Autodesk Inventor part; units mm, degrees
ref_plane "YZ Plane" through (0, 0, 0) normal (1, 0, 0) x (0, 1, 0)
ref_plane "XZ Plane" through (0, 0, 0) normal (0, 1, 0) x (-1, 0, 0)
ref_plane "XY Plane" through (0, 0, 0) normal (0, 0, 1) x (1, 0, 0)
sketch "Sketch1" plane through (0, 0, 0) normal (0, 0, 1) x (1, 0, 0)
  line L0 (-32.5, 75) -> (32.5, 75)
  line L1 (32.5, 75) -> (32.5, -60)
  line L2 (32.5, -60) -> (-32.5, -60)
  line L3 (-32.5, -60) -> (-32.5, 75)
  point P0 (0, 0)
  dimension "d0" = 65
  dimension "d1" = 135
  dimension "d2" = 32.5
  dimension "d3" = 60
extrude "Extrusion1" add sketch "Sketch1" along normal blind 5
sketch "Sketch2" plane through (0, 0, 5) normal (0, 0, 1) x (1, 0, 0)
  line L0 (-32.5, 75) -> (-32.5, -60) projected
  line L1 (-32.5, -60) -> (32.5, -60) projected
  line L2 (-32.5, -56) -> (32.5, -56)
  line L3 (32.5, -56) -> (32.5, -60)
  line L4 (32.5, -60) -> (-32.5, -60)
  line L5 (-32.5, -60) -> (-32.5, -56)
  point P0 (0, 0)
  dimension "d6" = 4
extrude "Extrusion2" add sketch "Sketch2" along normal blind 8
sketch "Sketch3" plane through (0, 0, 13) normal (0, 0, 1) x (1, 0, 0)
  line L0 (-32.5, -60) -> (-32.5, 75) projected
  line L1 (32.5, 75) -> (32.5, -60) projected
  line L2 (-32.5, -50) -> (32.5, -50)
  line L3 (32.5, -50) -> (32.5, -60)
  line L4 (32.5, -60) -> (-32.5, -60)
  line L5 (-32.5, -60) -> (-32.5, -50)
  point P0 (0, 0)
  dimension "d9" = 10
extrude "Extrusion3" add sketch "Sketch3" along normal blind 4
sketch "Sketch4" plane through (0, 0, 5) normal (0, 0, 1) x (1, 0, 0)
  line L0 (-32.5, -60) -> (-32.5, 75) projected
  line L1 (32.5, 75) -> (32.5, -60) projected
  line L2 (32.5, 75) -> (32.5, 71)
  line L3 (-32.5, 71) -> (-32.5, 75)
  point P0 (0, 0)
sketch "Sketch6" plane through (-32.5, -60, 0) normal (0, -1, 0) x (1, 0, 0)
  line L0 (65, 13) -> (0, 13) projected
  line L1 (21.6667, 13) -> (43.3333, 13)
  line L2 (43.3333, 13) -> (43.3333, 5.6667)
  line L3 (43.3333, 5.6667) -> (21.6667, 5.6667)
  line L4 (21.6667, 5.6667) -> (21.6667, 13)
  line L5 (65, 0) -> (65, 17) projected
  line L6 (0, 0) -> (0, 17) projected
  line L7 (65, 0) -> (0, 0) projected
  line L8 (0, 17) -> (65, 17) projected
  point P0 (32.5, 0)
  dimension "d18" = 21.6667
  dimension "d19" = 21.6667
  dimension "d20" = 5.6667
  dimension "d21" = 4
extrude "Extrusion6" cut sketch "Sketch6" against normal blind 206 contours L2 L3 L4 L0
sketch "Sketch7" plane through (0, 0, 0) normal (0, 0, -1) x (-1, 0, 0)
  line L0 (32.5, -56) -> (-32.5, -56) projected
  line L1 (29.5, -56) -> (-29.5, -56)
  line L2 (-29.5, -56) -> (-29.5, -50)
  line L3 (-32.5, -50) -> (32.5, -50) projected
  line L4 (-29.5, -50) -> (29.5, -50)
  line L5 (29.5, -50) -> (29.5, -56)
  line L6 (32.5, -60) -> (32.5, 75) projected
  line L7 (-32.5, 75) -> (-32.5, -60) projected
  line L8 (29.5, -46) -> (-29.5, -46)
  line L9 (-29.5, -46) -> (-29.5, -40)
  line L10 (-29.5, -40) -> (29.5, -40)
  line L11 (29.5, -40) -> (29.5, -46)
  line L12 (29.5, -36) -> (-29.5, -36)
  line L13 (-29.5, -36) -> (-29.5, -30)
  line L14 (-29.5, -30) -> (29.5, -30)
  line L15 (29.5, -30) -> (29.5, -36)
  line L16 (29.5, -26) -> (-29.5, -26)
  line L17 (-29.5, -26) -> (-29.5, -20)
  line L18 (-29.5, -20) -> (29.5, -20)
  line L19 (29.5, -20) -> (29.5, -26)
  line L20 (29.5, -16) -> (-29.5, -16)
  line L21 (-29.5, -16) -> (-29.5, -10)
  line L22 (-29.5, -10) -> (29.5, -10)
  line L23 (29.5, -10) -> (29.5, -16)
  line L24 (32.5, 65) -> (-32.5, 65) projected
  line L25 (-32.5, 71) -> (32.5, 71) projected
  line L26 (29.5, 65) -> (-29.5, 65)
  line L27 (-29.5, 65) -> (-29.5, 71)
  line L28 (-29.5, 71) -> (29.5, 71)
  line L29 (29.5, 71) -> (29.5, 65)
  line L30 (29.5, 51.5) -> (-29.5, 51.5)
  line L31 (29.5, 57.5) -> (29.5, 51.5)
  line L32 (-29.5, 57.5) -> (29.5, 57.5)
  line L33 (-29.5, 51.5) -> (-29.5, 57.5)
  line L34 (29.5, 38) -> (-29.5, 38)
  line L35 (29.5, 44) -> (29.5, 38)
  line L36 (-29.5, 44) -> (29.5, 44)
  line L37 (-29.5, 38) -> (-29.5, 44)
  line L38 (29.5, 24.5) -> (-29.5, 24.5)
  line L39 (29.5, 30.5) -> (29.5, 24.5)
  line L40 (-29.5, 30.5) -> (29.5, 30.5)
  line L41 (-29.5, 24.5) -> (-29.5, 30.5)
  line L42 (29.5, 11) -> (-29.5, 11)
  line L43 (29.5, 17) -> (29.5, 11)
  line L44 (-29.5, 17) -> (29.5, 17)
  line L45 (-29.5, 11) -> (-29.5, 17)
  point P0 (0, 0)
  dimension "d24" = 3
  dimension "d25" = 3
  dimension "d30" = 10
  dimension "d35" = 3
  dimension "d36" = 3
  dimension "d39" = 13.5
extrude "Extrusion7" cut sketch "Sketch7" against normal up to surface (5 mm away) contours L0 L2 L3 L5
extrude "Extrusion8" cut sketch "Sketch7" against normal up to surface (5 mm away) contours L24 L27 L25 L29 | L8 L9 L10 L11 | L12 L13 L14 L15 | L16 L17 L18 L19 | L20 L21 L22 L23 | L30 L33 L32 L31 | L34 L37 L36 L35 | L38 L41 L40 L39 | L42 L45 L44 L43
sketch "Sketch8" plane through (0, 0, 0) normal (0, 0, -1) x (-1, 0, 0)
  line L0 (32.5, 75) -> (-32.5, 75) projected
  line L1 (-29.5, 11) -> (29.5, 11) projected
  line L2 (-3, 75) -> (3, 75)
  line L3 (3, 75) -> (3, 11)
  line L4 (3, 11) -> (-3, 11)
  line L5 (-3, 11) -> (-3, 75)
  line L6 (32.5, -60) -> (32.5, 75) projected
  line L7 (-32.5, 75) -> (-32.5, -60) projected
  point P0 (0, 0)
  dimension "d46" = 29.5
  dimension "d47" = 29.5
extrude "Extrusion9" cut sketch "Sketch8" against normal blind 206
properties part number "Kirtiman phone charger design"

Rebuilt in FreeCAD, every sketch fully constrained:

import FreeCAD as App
import Part
import Sketcher
Q = App.Units.Quantity

doc = App.newDocument("Part")
body = doc.addObject("PartDesign::Body", "Body")

# Sketch on XY plane
sketch1 = body.newObject("Sketcher::SketchObject", "Sketch")
sketch1.AttachmentSupport = (doc.getObject("XY_Plane"), [""])
sketch1.MapMode = "FlatFace"
sketch1.addGeometry([
    Part.LineSegment(App.Vector(32.5, 75, 0), App.Vector(-32.5, 75, 0)),
    Part.LineSegment(App.Vector(-32.5, 75, 0), App.Vector(-32.5, -60, 0)),
    Part.LineSegment(App.Vector(-32.5, -60, 0), App.Vector(32.5, -60, 0)),
    Part.LineSegment(App.Vector(32.5, -60, 0), App.Vector(32.5, 75, 0)),
], False)
sketch1.addConstraint([
    Sketcher.Constraint("Coincident", 0, 2, 1, 1),
    Sketcher.Constraint("Coincident", 1, 2, 2, 1),
    Sketcher.Constraint("Coincident", 2, 2, 3, 1),
    Sketcher.Constraint("Coincident", 3, 2, 0, 1),
    Sketcher.Constraint("Horizontal", 0),
    Sketcher.Constraint("Vertical", 1),
    Sketcher.Constraint("Horizontal", 2),
    Sketcher.Constraint("Vertical", 3),
    Sketcher.Constraint("DistanceX", 0, 2, 0, 1, Q("65 mm")),
    Sketcher.Constraint("DistanceY", 1, 2, 1, 1, Q("135 mm")),
    Sketcher.Constraint("DistanceY", 1, 2, -1, 1, Q("60 mm")),
    Sketcher.Constraint("DistanceX", 0, 2, -1, 1, Q("32.5 mm")),
])
pad1 = body.newObject("PartDesign::Pad", "Pad")
pad1.Profile = sketch1
pad1.Length = 5

# Sketch on XY plane
sketch2 = body.newObject("Sketcher::SketchObject", "Sketch001")
sketch2.AttachmentSupport = (doc.getObject("XY_Plane"), [""])
sketch2.MapMode = "FlatFace"
sketch2.AttachmentOffset = App.Placement(App.Vector(0, 0, 5), App.Rotation())
sketch2.addGeometry([
    Part.LineSegment(App.Vector(32.5, -56, 0), App.Vector(-32.5, -56, 0)),
    Part.LineSegment(App.Vector(-32.5, -56, 0), App.Vector(-32.5, -60, 0)),
    Part.LineSegment(App.Vector(-32.5, -60, 0), App.Vector(32.5, -60, 0)),
    Part.LineSegment(App.Vector(32.5, -60, 0), App.Vector(32.5, -56, 0)),
], False)
sketch2.addConstraint([
    Sketcher.Constraint("Coincident", 0, 2, 1, 1),
    Sketcher.Constraint("Coincident", 1, 2, 2, 1),
    Sketcher.Constraint("Coincident", 2, 2, 3, 1),
    Sketcher.Constraint("Coincident", 3, 2, 0, 1),
    Sketcher.Constraint("Horizontal", 0),
    Sketcher.Constraint("Vertical", 1),
    Sketcher.Constraint("Horizontal", 2),
    Sketcher.Constraint("Vertical", 3),
    Sketcher.Constraint("DistanceY", 1, 2, 1, 1, Q("4 mm")),
    Sketcher.Constraint("DistanceX", 0, 2, 0, 1, Q("65 mm")),
    Sketcher.Constraint("DistanceY", 0, 2, -1, 1, Q("56 mm")),
    Sketcher.Constraint("DistanceX", 0, 2, -1, 1, Q("32.5 mm")),
])
pad2 = body.newObject("PartDesign::Pad", "Pad001")
pad2.Profile = sketch2
pad2.Length = 8

# Sketch on XY plane
sketch3 = body.newObject("Sketcher::SketchObject", "Sketch002")
sketch3.AttachmentSupport = (doc.getObject("XY_Plane"), [""])
sketch3.MapMode = "FlatFace"
sketch3.AttachmentOffset = App.Placement(App.Vector(0, 0, 13), App.Rotation())
sketch3.addGeometry([
    Part.LineSegment(App.Vector(-32.5, -50, 0), App.Vector(-32.5, -60, 0)),
    Part.LineSegment(App.Vector(-32.5, -60, 0), App.Vector(32.5, -60, 0)),
    Part.LineSegment(App.Vector(32.5, -60, 0), App.Vector(32.5, -50, 0)),
    Part.LineSegment(App.Vector(32.5, -50, 0), App.Vector(-32.5, -50, 0)),
], False)
sketch3.addConstraint([
    Sketcher.Constraint("Coincident", 0, 2, 1, 1),
    Sketcher.Constraint("Coincident", 1, 2, 2, 1),
    Sketcher.Constraint("Coincident", 2, 2, 3, 1),
    Sketcher.Constraint("Coincident", 3, 2, 0, 1),
    Sketcher.Constraint("Vertical", 0),
    Sketcher.Constraint("Horizontal", 1),
    Sketcher.Constraint("Vertical", 2),
    Sketcher.Constraint("Horizontal", 3),
    Sketcher.Constraint("DistanceY", 0, 2, 0, 1, Q("10 mm")),
    Sketcher.Constraint("DistanceX", 1, 1, 1, 2, Q("65 mm")),
    Sketcher.Constraint("DistanceY", 0, 2, -1, 1, Q("60 mm")),
    Sketcher.Constraint("DistanceX", 0, 2, -1, 1, Q("32.5 mm")),
])
pad3 = body.newObject("PartDesign::Pad", "Pad002")
pad3.Profile = sketch3
pad3.Length = 4

# Sketch on XZ plane
sketch4 = body.newObject("Sketcher::SketchObject", "Sketch003")
sketch4.AttachmentSupport = (doc.getObject("XZ_Plane"), [""])
sketch4.MapMode = "FlatFace"
sketch4.AttachmentOffset = App.Placement(App.Vector(0, 0, 60), App.Rotation())
sketch4.addGeometry([
    Part.LineSegment(App.Vector(10.8333, 5.6667, 0), App.Vector(10.8333, 13, 0)),
    Part.LineSegment(App.Vector(10.8333, 13, 0), App.Vector(-10.8333, 13, 0)),
    Part.LineSegment(App.Vector(-10.8333, 13, 0), App.Vector(-10.8333, 5.6667, 0)),
    Part.LineSegment(App.Vector(-10.8333, 5.6667, 0), App.Vector(10.8333, 5.6667, 0)),
], False)
sketch4.addConstraint([
    Sketcher.Constraint("Coincident", 0, 2, 1, 1),
    Sketcher.Constraint("Coincident", 1, 2, 2, 1),
    Sketcher.Constraint("Coincident", 2, 2, 3, 1),
    Sketcher.Constraint("Coincident", 3, 2, 0, 1),
    Sketcher.Constraint("Vertical", 0),
    Sketcher.Constraint("Horizontal", 1),
    Sketcher.Constraint("Vertical", 2),
    Sketcher.Constraint("Horizontal", 3),
    Sketcher.Constraint("DistanceX", 1, 2, 1, 1, Q("21.6666 mm")),
    Sketcher.Constraint("DistanceY", -1, 1, 0, 2, Q("13 mm")),
    Sketcher.Constraint("DistanceY", -1, 1, 2, 2, Q("5.6667 mm")),
    Sketcher.Constraint("DistanceX", -1, 1, 0, 2, Q("10.8333 mm")),
])
pocket1 = body.newObject("PartDesign::Pocket", "Pocket")
pocket1.Profile = sketch4
pocket1.Length = 206

# Sketch on XY plane
sketch5 = body.newObject("Sketcher::SketchObject", "Sketch004")
sketch5.AttachmentSupport = (doc.getObject("XY_Plane"), [""])
sketch5.MapMode = "FlatFace"
sketch5.addGeometry([
    Part.LineSegment(App.Vector(29.5, -56, 0), App.Vector(-29.5, -56, 0)),
    Part.LineSegment(App.Vector(-29.5, -56, 0), App.Vector(-29.5, -50, 0)),
    Part.LineSegment(App.Vector(-29.5, -50, 0), App.Vector(29.5, -50, 0)),
    Part.LineSegment(App.Vector(29.5, -50, 0), App.Vector(29.5, -56, 0)),
], False)
sketch5.addConstraint([
    Sketcher.Constraint("Coincident", 0, 2, 1, 1),
    Sketcher.Constraint("Coincident", 1, 2, 2, 1),
    Sketcher.Constraint("Coincident", 2, 2, 3, 1),
    Sketcher.Constraint("Coincident", 3, 2, 0, 1),
    Sketcher.Constraint("Horizontal", 0),
    Sketcher.Constraint("Vertical", 1),
    Sketcher.Constraint("Horizontal", 2),
    Sketcher.Constraint("Vertical", 3),
    Sketcher.Constraint("DistanceX", 0, 2, 0, 1, Q("59 mm")),
    Sketcher.Constraint("DistanceY", 1, 1, 1, 2, Q("6 mm")),
    Sketcher.Constraint("DistanceY", 0, 2, -1, 1, Q("56 mm")),
    Sketcher.Constraint("DistanceX", 0, 2, -1, 1, Q("29.5 mm")),
])
pocket2 = body.newObject("PartDesign::Pocket", "Pocket001")
pocket2.Profile = sketch5
pocket2.Length = 5
pocket2.Reversed = True

# Sketch on XY plane
sketch6 = body.newObject("Sketcher::SketchObject", "Sketch005")
sketch6.AttachmentSupport = (doc.getObject("XY_Plane"), [""])
sketch6.MapMode = "FlatFace"
sketch6.addGeometry([
    Part.LineSegment(App.Vector(29.5, 65, 0), App.Vector(-29.5, 65, 0)),  # 0
    Part.LineSegment(App.Vector(-29.5, 65, 0), App.Vector(-29.5, 71, 0)),  # 1
    Part.LineSegment(App.Vector(-29.5, 71, 0), App.Vector(29.5, 71, 0)),  # 2
    Part.LineSegment(App.Vector(29.5, 71, 0), App.Vector(29.5, 65, 0)),  # 3
    Part.LineSegment(App.Vector(29.5, -46, 0), App.Vector(-29.5, -46, 0)),  # 4
    Part.LineSegment(App.Vector(-29.5, -46, 0), App.Vector(-29.5, -40, 0)),  # 5
    Part.LineSegment(App.Vector(-29.5, -40, 0), App.Vector(29.5, -40, 0)),  # 6
    Part.LineSegment(App.Vector(29.5, -40, 0), App.Vector(29.5, -46, 0)),  # 7
    Part.LineSegment(App.Vector(29.5, -36, 0), App.Vector(-29.5, -36, 0)),  # 8
    Part.LineSegment(App.Vector(-29.5, -36, 0), App.Vector(-29.5, -30, 0)),  # 9
    Part.LineSegment(App.Vector(-29.5, -30, 0), App.Vector(29.5, -30, 0)),  # 10
    Part.LineSegment(App.Vector(29.5, -30, 0), App.Vector(29.5, -36, 0)),  # 11
    Part.LineSegment(App.Vector(29.5, -26, 0), App.Vector(-29.5, -26, 0)),  # 12
    Part.LineSegment(App.Vector(-29.5, -26, 0), App.Vector(-29.5, -20, 0)),  # 13
    Part.LineSegment(App.Vector(-29.5, -20, 0), App.Vector(29.5, -20, 0)),  # 14
    Part.LineSegment(App.Vector(29.5, -20, 0), App.Vector(29.5, -26, 0)),  # 15
    Part.LineSegment(App.Vector(29.5, -16, 0), App.Vector(-29.5, -16, 0)),  # 16
    Part.LineSegment(App.Vector(-29.5, -16, 0), App.Vector(-29.5, -10, 0)),  # 17
    Part.LineSegment(App.Vector(-29.5, -10, 0), App.Vector(29.5, -10, 0)),  # 18
    Part.LineSegment(App.Vector(29.5, -10, 0), App.Vector(29.5, -16, 0)),  # 19
    Part.LineSegment(App.Vector(29.5, 51.5, 0), App.Vector(-29.5, 51.5, 0)),  # 20
    Part.LineSegment(App.Vector(-29.5, 51.5, 0), App.Vector(-29.5, 57.5, 0)),  # 21
    Part.LineSegment(App.Vector(-29.5, 57.5, 0), App.Vector(29.5, 57.5, 0)),  # 22
    Part.LineSegment(App.Vector(29.5, 57.5, 0), App.Vector(29.5, 51.5, 0)),  # 23
    Part.LineSegment(App.Vector(29.5, 38, 0), App.Vector(-29.5, 38, 0)),  # 24
    Part.LineSegment(App.Vector(-29.5, 38, 0), App.Vector(-29.5, 44, 0)),  # 25
    Part.LineSegment(App.Vector(-29.5, 44, 0), App.Vector(29.5, 44, 0)),  # 26
    Part.LineSegment(App.Vector(29.5, 44, 0), App.Vector(29.5, 38, 0)),  # 27
    Part.LineSegment(App.Vector(29.5, 24.5, 0), App.Vector(-29.5, 24.5, 0)),  # 28
    Part.LineSegment(App.Vector(-29.5, 24.5, 0), App.Vector(-29.5, 30.5, 0)),  # 29
    Part.LineSegment(App.Vector(-29.5, 30.5, 0), App.Vector(29.5, 30.5, 0)),  # 30
    Part.LineSegment(App.Vector(29.5, 30.5, 0), App.Vector(29.5, 24.5, 0)),  # 31
    Part.LineSegment(App.Vector(29.5, 11, 0), App.Vector(-29.5, 11, 0)),  # 32
    Part.LineSegment(App.Vector(-29.5, 11, 0), App.Vector(-29.5, 17, 0)),  # 33
    Part.LineSegment(App.Vector(-29.5, 17, 0), App.Vector(29.5, 17, 0)),  # 34
    Part.LineSegment(App.Vector(29.5, 17, 0), App.Vector(29.5, 11, 0)),  # 35
], False)
sketch6.addConstraint([
    Sketcher.Constraint("Coincident", 0, 2, 1, 1),
    Sketcher.Constraint("Coincident", 1, 2, 2, 1),
    Sketcher.Constraint("Coincident", 2, 2, 3, 1),
    Sketcher.Constraint("Coincident", 3, 2, 0, 1),
    Sketcher.Constraint("Coincident", 4, 2, 5, 1),
    Sketcher.Constraint("Coincident", 5, 2, 6, 1),
    Sketcher.Constraint("Coincident", 6, 2, 7, 1),
    Sketcher.Constraint("Coincident", 7, 2, 4, 1),
    Sketcher.Constraint("Coincident", 8, 2, 9, 1),
    Sketcher.Constraint("Coincident", 9, 2, 10, 1),
    Sketcher.Constraint("Coincident", 10, 2, 11, 1),
    Sketcher.Constraint("Coincident", 11, 2, 8, 1),
    Sketcher.Constraint("Coincident", 12, 2, 13, 1),
    Sketcher.Constraint("Coincident", 13, 2, 14, 1),
    Sketcher.Constraint("Coincident", 14, 2, 15, 1),
    Sketcher.Constraint("Coincident", 15, 2, 12, 1),
    Sketcher.Constraint("Coincident", 16, 2, 17, 1),
    Sketcher.Constraint("Coincident", 17, 2, 18, 1),
    Sketcher.Constraint("Coincident", 18, 2, 19, 1),
    Sketcher.Constraint("Coincident", 19, 2, 16, 1),
    Sketcher.Constraint("Coincident", 20, 2, 21, 1),
    Sketcher.Constraint("Coincident", 21, 2, 22, 1),
    Sketcher.Constraint("Coincident", 22, 2, 23, 1),
    Sketcher.Constraint("Coincident", 23, 2, 20, 1),
    Sketcher.Constraint("Coincident", 24, 2, 25, 1),
    Sketcher.Constraint("Coincident", 25, 2, 26, 1),
    Sketcher.Constraint("Coincident", 26, 2, 27, 1),
    Sketcher.Constraint("Coincident", 27, 2, 24, 1),
    Sketcher.Constraint("Coincident", 28, 2, 29, 1),
    Sketcher.Constraint("Coincident", 29, 2, 30, 1),
    Sketcher.Constraint("Coincident", 30, 2, 31, 1),
    Sketcher.Constraint("Coincident", 31, 2, 28, 1),
    Sketcher.Constraint("Coincident", 32, 2, 33, 1),
    Sketcher.Constraint("Coincident", 33, 2, 34, 1),
    Sketcher.Constraint("Coincident", 34, 2, 35, 1),
    Sketcher.Constraint("Coincident", 35, 2, 32, 1),
    Sketcher.Constraint("Horizontal", 0),
    Sketcher.Constraint("Vertical", 1),
    Sketcher.Constraint("Horizontal", 2),
    Sketcher.Constraint("Vertical", 3),
    Sketcher.Constraint("Horizontal", 4),
    Sketcher.Constraint("Vertical", 5),
    Sketcher.Constraint("Horizontal", 6),
    Sketcher.Constraint("Vertical", 7),
    Sketcher.Constraint("Horizontal", 8),
    Sketcher.Constraint("Vertical", 9),
    Sketcher.Constraint("Horizontal", 10),
    Sketcher.Constraint("Vertical", 11),
    Sketcher.Constraint("Horizontal", 12),
    Sketcher.Constraint("Vertical", 13),
    Sketcher.Constraint("Horizontal", 14),
    Sketcher.Constraint("Vertical", 15),
    Sketcher.Constraint("Horizontal", 16),
    Sketcher.Constraint("Vertical", 17),
    Sketcher.Constraint("Horizontal", 18),
    Sketcher.Constraint("Vertical", 19),
    Sketcher.Constraint("Horizontal", 20),
    Sketcher.Constraint("Vertical", 21),
    Sketcher.Constraint("Horizontal", 22),
    Sketcher.Constraint("Vertical", 23),
    Sketcher.Constraint("Horizontal", 24),
    Sketcher.Constraint("Vertical", 25),
    Sketcher.Constraint("Horizontal", 26),
    Sketcher.Constraint("Vertical", 27),
    Sketcher.Constraint("Horizontal", 28),
    Sketcher.Constraint("Vertical", 29),
    Sketcher.Constraint("Horizontal", 30),
    Sketcher.Constraint("Vertical", 31),
    Sketcher.Constraint("Horizontal", 32),
    Sketcher.Constraint("Vertical", 33),
    Sketcher.Constraint("Horizontal", 34),
    Sketcher.Constraint("Vertical", 35),
    Sketcher.Constraint("Vertical", 1, 2, 4, 2),
    Sketcher.Constraint("Vertical", 3, 2, 6, 2),
    Sketcher.Constraint("Vertical", 5, 2, 8, 2),
    Sketcher.Constraint("Vertical", 7, 2, 10, 2),
    Sketcher.Constraint("Vertical", 9, 2, 12, 2),
    Sketcher.Constraint("Vertical", 11, 2, 14, 2),
    Sketcher.Constraint("Vertical", 13, 2, 16, 2),
    Sketcher.Constraint("Vertical", 15, 2, 18, 2),
    Sketcher.Constraint("Vertical", 17, 2, 20, 2),
    Sketcher.Constraint("Vertical", 19, 2, 22, 2),
    Sketcher.Constraint("Vertical", 21, 2, 24, 2),
    Sketcher.Constraint("Vertical", 23, 2, 26, 2),
    Sketcher.Constraint("Vertical", 25, 2, 28, 2),
    Sketcher.Constraint("Vertical", 27, 2, 30, 2),
    Sketcher.Constraint("Vertical", 29, 2, 32, 2),
    Sketcher.Constraint("Vertical", 31, 2, 34, 2),
    Sketcher.Constraint("Equal", 3, 5),
    Sketcher.Constraint("Equal", 7, 9),
    Sketcher.Constraint("Equal", 11, 13),
    Sketcher.Constraint("Equal", 15, 17),
    Sketcher.Constraint("Equal", 19, 21),
    Sketcher.Constraint("Equal", 23, 25),
    Sketcher.Constraint("Equal", 27, 29),
    Sketcher.Constraint("Equal", 31, 33),
    Sketcher.Constraint("DistanceY", 17, 2, -1, 1, Q("10 mm")),
    Sketcher.Constraint("DistanceY", 4, 2, 8, 2, Q("10 mm")),
    Sketcher.Constraint("DistanceY", 8, 2, 12, 2, Q("10 mm")),
    Sketcher.Constraint("DistanceY", 12, 2, 16, 2, Q("10 mm")),
    Sketcher.Constraint("DistanceY", 20, 2, 0, 2, Q("13.5 mm")),
    Sketcher.Constraint("DistanceY", 24, 2, 20, 2, Q("13.5 mm")),
    Sketcher.Constraint("DistanceY", 28, 2, 24, 2, Q("13.5 mm")),
    Sketcher.Constraint("DistanceY", 32, 2, 28, 2, Q("13.5 mm")),
    Sketcher.Constraint("DistanceX", 0, 2, 0, 1, Q("59 mm")),
    Sketcher.Constraint("DistanceY", 1, 1, 1, 2, Q("6 mm")),
    Sketcher.Constraint("DistanceY", -1, 1, 0, 2, Q("65 mm")),
    Sketcher.Constraint("DistanceX", 0, 2, -1, 1, Q("29.5 mm")),
])
pocket3 = body.newObject("PartDesign::Pocket", "Pocket002")
pocket3.Profile = sketch6
pocket3.Length = 5
pocket3.Reversed = True

# Sketch on XY plane
sketch7 = body.newObject("Sketcher::SketchObject", "Sketch006")
sketch7.AttachmentSupport = (doc.getObject("XY_Plane"), [""])
sketch7.MapMode = "FlatFace"
sketch7.addGeometry([
    Part.LineSegment(App.Vector(-3, 11, 0), App.Vector(-3, 75, 0)),
    Part.LineSegment(App.Vector(-3, 75, 0), App.Vector(3, 75, 0)),
    Part.LineSegment(App.Vector(3, 75, 0), App.Vector(3, 11, 0)),
    Part.LineSegment(App.Vector(3, 11, 0), App.Vector(-3, 11, 0)),
], False)
sketch7.addConstraint([
    Sketcher.Constraint("Coincident", 0, 2, 1, 1),
    Sketcher.Constraint("Coincident", 1, 2, 2, 1),
    Sketcher.Constraint("Coincident", 2, 2, 3, 1),
    Sketcher.Constraint("Coincident", 3, 2, 0, 1),
    Sketcher.Constraint("Vertical", 0),
    Sketcher.Constraint("Horizontal", 1),
    Sketcher.Constraint("Vertical", 2),
    Sketcher.Constraint("Horizontal", 3),
    Sketcher.Constraint("DistanceX", 1, 1, 1, 2, Q("6 mm")),
    Sketcher.Constraint("DistanceY", 0, 1, 0, 2, Q("64 mm")),
    Sketcher.Constraint("DistanceX", 0, 2, -1, 1, Q("3 mm")),
    Sketcher.Constraint("DistanceY", -1, 1, 0, 2, Q("75 mm")),
])
pocket4 = body.newObject("PartDesign::Pocket", "Pocket003")
pocket4.Profile = sketch7
pocket4.Length = 206
pocket4.Reversed = True

doc.recompute()
